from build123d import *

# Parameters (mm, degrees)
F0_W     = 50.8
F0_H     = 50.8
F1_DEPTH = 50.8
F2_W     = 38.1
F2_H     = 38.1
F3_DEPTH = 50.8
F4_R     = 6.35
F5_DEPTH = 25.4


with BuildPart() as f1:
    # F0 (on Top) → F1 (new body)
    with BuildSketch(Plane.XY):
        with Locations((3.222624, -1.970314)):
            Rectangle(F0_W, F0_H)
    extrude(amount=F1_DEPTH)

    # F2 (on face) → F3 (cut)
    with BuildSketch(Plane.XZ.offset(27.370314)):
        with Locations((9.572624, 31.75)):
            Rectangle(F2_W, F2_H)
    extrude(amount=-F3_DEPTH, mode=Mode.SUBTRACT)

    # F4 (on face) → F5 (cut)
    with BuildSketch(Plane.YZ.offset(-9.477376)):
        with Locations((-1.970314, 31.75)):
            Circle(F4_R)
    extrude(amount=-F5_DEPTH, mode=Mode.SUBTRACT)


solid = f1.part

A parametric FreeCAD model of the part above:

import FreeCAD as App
import Part
import Sketcher
from FreeCAD import Vector
Q = App.Units.Quantity

doc = App.newDocument("Part")
body = doc.addObject("PartDesign::Body", "Body")

# Sketch on XY plane
sketch1 = body.newObject("Sketcher::SketchObject", "Sketch")
sketch1.AttachmentSupport = (doc.getObject("XY_Plane"), [""])
sketch1.MapMode = "FlatFace"
sketch1.addGeometry(Part.LineSegment(Vector(-22, 23, 0), Vector(-22, -27, 0)), False)
sketch1.addGeometry(Part.LineSegment(Vector(-22, -27, 0), Vector(29, -27, 0)), False)
sketch1.addGeometry(Part.LineSegment(Vector(29, -27, 0), Vector(29, 23, 0)), False)
sketch1.addGeometry(Part.LineSegment(Vector(29, 23, 0), Vector(-22, 23, 0)), False)
sketch1.addConstraint(Sketcher.Constraint("Coincident", 0, 2, 1, 1))
sketch1.addConstraint(Sketcher.Constraint("Coincident", 1, 2, 2, 1))
sketch1.addConstraint(Sketcher.Constraint("Coincident", 2, 2, 3, 1))
sketch1.addConstraint(Sketcher.Constraint("Coincident", 3, 2, 0, 1))
sketch1.addConstraint(Sketcher.Constraint("Vertical", 0))
sketch1.addConstraint(Sketcher.Constraint("Horizontal", 1))
sketch1.addConstraint(Sketcher.Constraint("Vertical", 2))
sketch1.addConstraint(Sketcher.Constraint("Horizontal", 3))
sketch1.addConstraint(Sketcher.Constraint("Equal", 3, 0))
sketch1.addConstraint(Sketcher.Constraint("DistanceX", 1, 1, 1, 2, Q("2 in")))
sketch1.addConstraint(Sketcher.Constraint("DistanceX", 0, 2, -1, 1, Q("22.177376 mm")))
sketch1.addConstraint(Sketcher.Constraint("DistanceY", 0, 2, -1, 1, Q("27.370314 mm")))
pad1 = body.newObject("PartDesign::Pad", "Pad")
pad1.Profile = sketch1
pad1.Length = Q("2 in")

# Sketch on XZ plane
sketch2 = body.newObject("Sketcher::SketchObject", "Sketch001")
sketch2.AttachmentSupport = (doc.getObject("XZ_Plane"), [""])
sketch2.MapMode = "FlatFace"
sketch2.AttachmentOffset = App.Placement(Vector(0, 0, 27.370314), App.Rotation())
sketch2.addGeometry(Part.LineSegment(Vector(-9, 51, 0), Vector(-9, 13, 0)), False)
sketch2.addGeometry(Part.LineSegment(Vector(-9, 13, 0), Vector(29, 13, 0)), False)
sketch2.addGeometry(Part.LineSegment(Vector(29, 13, 0), Vector(29, 51, 0)), False)
sketch2.addGeometry(Part.LineSegment(Vector(29, 51, 0), Vector(-9, 51, 0)), False)
sketch2.addConstraint(Sketcher.Constraint("Coincident", 0, 2, 1, 1))
sketch2.addConstraint(Sketcher.Constraint("Coincident", 1, 2, 2, 1))
sketch2.addConstraint(Sketcher.Constraint("Coincident", 2, 2, 3, 1))
sketch2.addConstraint(Sketcher.Constraint("Coincident", 3, 2, 0, 1))
sketch2.addConstraint(Sketcher.Constraint("Vertical", 0))
sketch2.addConstraint(Sketcher.Constraint("Horizontal", 1))
sketch2.addConstraint(Sketcher.Constraint("Vertical", 2))
sketch2.addConstraint(Sketcher.Constraint("Horizontal", 3))
sketch2.addConstraint(Sketcher.Constraint("Equal", 3, 0))
sketch2.addConstraint(Sketcher.Constraint("DistanceX", 1, 1, 1, 2, Q("1.5 in")))
sketch2.addConstraint(Sketcher.Constraint("DistanceY", -1, 1, 2, 2, Q("2 in")))
sketch2.addConstraint(Sketcher.Constraint("DistanceX", 0, 2, -1, 1, Q("9.477376 mm")))
pocket1 = body.newObject("PartDesign::Pocket", "Pocket")
pocket1.Profile = sketch2
pocket1.Length = Q("2 in")

# Sketch on YZ plane
sketch3 = body.newObject("Sketcher::SketchObject", "Sketch002")
sketch3.AttachmentSupport = (doc.getObject("YZ_Plane"), [""])
sketch3.MapMode = "FlatFace"
sketch3.AttachmentOffset = App.Placement(Vector(0, 0, -9.477376), App.Rotation())
sketch3.addGeometry(Part.Circle(Vector(-2, 32, 0), Vector(0, 0, 1), 6), False)
sketch3.addConstraint(Sketcher.Constraint("Diameter", 0, Q("0.5 in")))
sketch3.addConstraint(Sketcher.Constraint("DistanceY", -1, 1, 0, 3, Q("1.25 in")))
sketch3.addConstraint(Sketcher.Constraint("DistanceX", 0, 3, -1, 1, Q("1.970314 mm")))
pocket2 = body.newObject("PartDesign::Pocket", "Pocket001")
pocket2.Profile = sketch3
pocket2.Length = Q("1 in")

doc.recompute()
